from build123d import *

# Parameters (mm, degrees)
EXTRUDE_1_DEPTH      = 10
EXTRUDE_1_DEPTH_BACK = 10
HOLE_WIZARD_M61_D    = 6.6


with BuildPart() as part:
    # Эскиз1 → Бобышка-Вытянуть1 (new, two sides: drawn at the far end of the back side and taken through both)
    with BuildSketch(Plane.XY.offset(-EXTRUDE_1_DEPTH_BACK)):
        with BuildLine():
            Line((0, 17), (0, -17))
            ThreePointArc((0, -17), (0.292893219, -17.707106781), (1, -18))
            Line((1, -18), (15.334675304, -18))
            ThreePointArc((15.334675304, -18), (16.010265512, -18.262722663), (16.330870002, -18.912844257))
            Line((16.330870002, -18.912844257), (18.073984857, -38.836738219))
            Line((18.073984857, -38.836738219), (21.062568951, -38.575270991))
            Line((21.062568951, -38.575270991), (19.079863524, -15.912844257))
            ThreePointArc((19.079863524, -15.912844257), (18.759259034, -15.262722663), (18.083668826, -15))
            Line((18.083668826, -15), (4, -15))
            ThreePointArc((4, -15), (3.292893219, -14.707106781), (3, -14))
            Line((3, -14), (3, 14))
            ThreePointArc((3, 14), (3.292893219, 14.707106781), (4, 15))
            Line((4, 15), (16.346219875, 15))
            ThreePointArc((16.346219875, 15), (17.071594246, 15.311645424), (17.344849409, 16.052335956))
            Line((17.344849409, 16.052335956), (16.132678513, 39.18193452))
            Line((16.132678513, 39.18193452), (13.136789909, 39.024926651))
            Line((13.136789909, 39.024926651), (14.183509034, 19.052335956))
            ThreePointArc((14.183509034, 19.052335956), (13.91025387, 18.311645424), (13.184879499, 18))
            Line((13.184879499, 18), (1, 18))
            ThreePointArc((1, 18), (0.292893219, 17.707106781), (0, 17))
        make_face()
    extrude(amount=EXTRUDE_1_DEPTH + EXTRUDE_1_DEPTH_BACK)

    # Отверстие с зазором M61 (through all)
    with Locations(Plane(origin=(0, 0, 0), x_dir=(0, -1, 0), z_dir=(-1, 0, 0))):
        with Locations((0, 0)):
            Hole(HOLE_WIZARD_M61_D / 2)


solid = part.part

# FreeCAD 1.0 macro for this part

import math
import FreeCAD as App
import Part
import Sketcher
Q = App.Units.Quantity

doc = App.newDocument("Part")
body = doc.addObject("PartDesign::Body", "Body")

sketch1 = body.newObject("Sketcher::SketchObject", "Sketch")
sketch1.AttachmentSupport = (doc.getObject("XY_Plane"), [""])
sketch1.MapMode = "FlatFace"
sketch1.addGeometry([
    Part.LineSegment(App.Vector(0, 17, 0), App.Vector(0, -17, 0)),
    Part.ArcOfCircle(Part.Circle(App.Vector(1, -17, 0), App.Vector(0, 0, 1), 1), math.radians(-180), math.radians(-90)),
    Part.LineSegment(App.Vector(1, -18, 0), App.Vector(15.334675, -18, 0)),
    Part.ArcOfCircle(Part.Circle(App.Vector(15.334675, -19, 0), App.Vector(0, 0, 1), 1), math.radians(5), math.radians(90)),
    Part.LineSegment(App.Vector(16.33087, -18.912844, 0), App.Vector(18.073985, -38.836738, 0)),
    Part.LineSegment(App.Vector(18.073985, -38.836738, 0), App.Vector(21.062569, -38.575271, 0)),
    Part.LineSegment(App.Vector(21.062569, -38.575271, 0), App.Vector(19.079864, -15.912844, 0)),
    Part.ArcOfCircle(Part.Circle(App.Vector(18.083669, -16, 0), App.Vector(0, 0, 1), 1), math.radians(5), math.radians(90)),
    Part.LineSegment(App.Vector(18.083669, -15, 0), App.Vector(4, -15, 0)),
    Part.ArcOfCircle(Part.Circle(App.Vector(4, -14, 0), App.Vector(0, 0, 1), 1), math.radians(-180), math.radians(-90)),
    Part.LineSegment(App.Vector(3, -14, 0), App.Vector(3, 14, 0)),
    Part.ArcOfCircle(Part.Circle(App.Vector(4, 14, 0), App.Vector(0, 0, 1), 1), math.radians(90), math.radians(180)),
    Part.LineSegment(App.Vector(4, 15, 0), App.Vector(16.34622, 15, 0)),
    Part.ArcOfCircle(Part.Circle(App.Vector(16.34622, 16, 0), App.Vector(0, 0, 1), 1), math.radians(-90), math.radians(3)),
    Part.LineSegment(App.Vector(17.344849, 16.052336, 0), App.Vector(16.132679, 39.181935, 0)),
    Part.LineSegment(App.Vector(16.132679, 39.181935, 0), App.Vector(13.13679, 39.024927, 0)),
    Part.LineSegment(App.Vector(13.13679, 39.024927, 0), App.Vector(14.183509, 19.052336, 0)),
    Part.ArcOfCircle(Part.Circle(App.Vector(13.184879, 19, 0), App.Vector(0, 0, 1), 1), math.radians(-90), math.radians(3)),
    Part.LineSegment(App.Vector(13.184879, 18, 0), App.Vector(1, 18, 0)),
    Part.ArcOfCircle(Part.Circle(App.Vector(1, 17, 0), App.Vector(0, 0, 1), 1), math.radians(90), math.radians(180)),
], False)
sketch1.addConstraint([
    Sketcher.Constraint("Tangent", 0, 2, 1, 1),
    Sketcher.Constraint("Tangent", 1, 2, 2, 1),
    Sketcher.Constraint("Tangent", 2, 2, 3, 2),
    Sketcher.Constraint("Tangent", 3, 1, 4, 1),
    Sketcher.Constraint("Coincident", 4, 2, 5, 1),
    Sketcher.Constraint("Coincident", 5, 2, 6, 1),
    Sketcher.Constraint("Tangent", 6, 2, 7, 1),
    Sketcher.Constraint("Tangent", 7, 2, 8, 1),
    Sketcher.Constraint("Tangent", 8, 2, 9, 2),
    Sketcher.Constraint("Tangent", 9, 1, 10, 1),
    Sketcher.Constraint("Tangent", 10, 2, 11, 2),
    Sketcher.Constraint("Tangent", 11, 1, 12, 1),
    Sketcher.Constraint("Tangent", 12, 2, 13, 1),
    Sketcher.Constraint("Tangent", 13, 2, 14, 1),
    Sketcher.Constraint("Coincident", 14, 2, 15, 1),
    Sketcher.Constraint("Coincident", 15, 2, 16, 1),
    Sketcher.Constraint("Tangent", 16, 2, 17, 2),
    Sketcher.Constraint("Tangent", 17, 1, 18, 1),
    Sketcher.Constraint("Tangent", 18, 2, 19, 1),
    Sketcher.Constraint("Tangent", 19, 2, 0, 1),
    Sketcher.Constraint("Vertical", 0),
    Sketcher.Constraint("Horizontal", 2),
    Sketcher.Constraint("Horizontal", 8),
    Sketcher.Constraint("Vertical", 10),
    Sketcher.Constraint("Horizontal", 12),
    Sketcher.Constraint("Horizontal", 18),
    Sketcher.Constraint("Equal", 1, 3),
    Sketcher.Constraint("Equal", 3, 7),
    Sketcher.Constraint("Equal", 7, 9),
    Sketcher.Constraint("Equal", 9, 11),
    Sketcher.Constraint("Equal", 11, 13),
    Sketcher.Constraint("Equal", 13, 17),
    Sketcher.Constraint("Equal", 17, 19),
    Sketcher.Constraint("Symmetric", 0, 2, 19, 2, -1, 1),
    Sketcher.Constraint("Perpendicular", 4, 5),
    Sketcher.Constraint("Perpendicular", 5, 6),
    Sketcher.Constraint("Perpendicular", 14, 15),
    Sketcher.Constraint("Perpendicular", 15, 16),
    Sketcher.Constraint("Equal", 5, 15),
    Sketcher.Constraint("Equal", 4, 16),
    Sketcher.Constraint("Radius", 1, Q("1 mm")),
    Sketcher.Constraint("DistanceY", 0, 2, 0, 1, Q("34 mm")),
    Sketcher.Constraint("DistanceY", 10, 1, 10, 2, Q("28 mm")),
    Sketcher.Constraint("Angle", 4, Q("-85 deg")),
    Sketcher.Constraint("Angle", 14, Q("93 deg")),
    Sketcher.Constraint("Distance", 4, Q("20 mm")),
    Sketcher.Constraint("Distance", 5, Q("3 mm")),
    Sketcher.Constraint("DistanceY", 7, 3, -1, 1, Q("16 mm")),
    Sketcher.Constraint("DistanceX", -1, 1, 9, 3, Q("4 mm")),
    Sketcher.Constraint("DistanceX", 8, 2, 8, 1, Q("14.083669 mm")),
    Sketcher.Constraint("DistanceX", 12, 1, 12, 2, Q("12.34622 mm")),
])
pad1 = body.newObject("PartDesign::Pad", "Pad")
pad1.Profile = sketch1
pad1.Type = "TwoLengths"
pad1.Length = 10
pad1.Length2 = 10

sketch2 = body.newObject("Sketcher::SketchObject", "Sketch001")
sketch2.AttachmentSupport = (doc.getObject("YZ_Plane"), [""])
sketch2.MapMode = "FlatFace"
sketch2.addGeometry(Part.Circle(App.Vector(0, 0, 0), App.Vector(0, 0, 1), 3.3), False)
sketch2.addConstraint([
    Sketcher.Constraint("Coincident", 0, 3, -1, 1),
    Sketcher.Constraint("Diameter", 0, Q("6.6 mm")),
])
doc.recompute()
hole = body.newObject("PartDesign::Hole", "Hole")
hole.Profile = sketch2
hole.ThreadType = "None"
hole.Diameter = 6.6
hole.DepthType = "ThroughAll"
hole.Reversed = True

doc.recompute()
